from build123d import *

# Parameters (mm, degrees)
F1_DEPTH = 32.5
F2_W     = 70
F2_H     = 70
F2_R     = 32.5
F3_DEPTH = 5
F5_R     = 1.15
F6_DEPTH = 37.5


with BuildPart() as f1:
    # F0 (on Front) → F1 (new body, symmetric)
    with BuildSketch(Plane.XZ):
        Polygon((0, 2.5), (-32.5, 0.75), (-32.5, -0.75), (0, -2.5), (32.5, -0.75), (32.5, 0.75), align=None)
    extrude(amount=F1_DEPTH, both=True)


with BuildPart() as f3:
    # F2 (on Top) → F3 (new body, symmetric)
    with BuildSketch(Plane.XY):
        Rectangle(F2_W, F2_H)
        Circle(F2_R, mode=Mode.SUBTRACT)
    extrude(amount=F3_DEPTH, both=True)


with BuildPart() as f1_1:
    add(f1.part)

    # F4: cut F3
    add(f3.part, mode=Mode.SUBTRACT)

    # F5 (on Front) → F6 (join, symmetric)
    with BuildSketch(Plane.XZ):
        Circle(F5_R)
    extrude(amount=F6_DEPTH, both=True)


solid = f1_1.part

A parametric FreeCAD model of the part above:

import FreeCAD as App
import Part
import Sketcher

V = App.Vector


def add_polygon(sketch, points):
    """Adds a closed chain of lines whose ends are joined by coincident constraints."""
    first, n = sketch.GeometryCount, len(points)
    for a, b in zip(points, points[1:] + points[:1]):
        sketch.addGeometry(Part.LineSegment(App.Vector(*a, 0), App.Vector(*b, 0)), False)
    for i in range(n):
        sketch.addConstraint(Sketcher.Constraint("Coincident", first + i, 2, first + (i + 1) % n, 1))

doc = App.newDocument("Part")
body = doc.addObject("PartDesign::Body", "Body")

sketch1 = body.newObject("Sketcher::SketchObject", "Sketch")
sketch1.AttachmentSupport = (doc.getObject("XZ_Plane"), [""])
sketch1.MapMode = "FlatFace"
add_polygon(sketch1, [(0, 2.5), (-32.5, 0.8), (-32.5, -0.8), (0, -2.5), (32.5, -0.8), (32.5, 0.8)])
sketch1.addConstraint([
    Sketcher.Constraint("Vertical", 1),
    Sketcher.Constraint("Vertical", 4),
    Sketcher.Constraint("Symmetric", 0, 2, 3, 2, -1, 1),
    Sketcher.Constraint("Symmetric", 2, 2, 5, 2, -1, 1),
    Sketcher.Constraint("PointOnObject", 2, 2, -2),
    Sketcher.Constraint("Parallel", 2, 5),
    Sketcher.Constraint("Horizontal", 1, 2, 3, 2),
    Sketcher.Constraint("DistanceY", 1, 2, 1, 1, 1.5),
    Sketcher.Constraint("DistanceX", 1, 2, 3, 2, 65.0),
    Sketcher.Constraint("DistanceY", 2, 2, 5, 2, 5.0),
])
pad1 = body.newObject("PartDesign::Pad", "Pad")
pad1.Profile = sketch1
pad1.Length = 65
pad1.Midplane = True
body2 = doc.addObject("PartDesign::Body", "Body001")

sketch2 = body2.newObject("Sketcher::SketchObject", "Sketch001")
sketch2.AttachmentSupport = (doc.getObject("XY_Plane001"), [""])
sketch2.MapMode = "FlatFace"
add_polygon(sketch2, [(-35, 35), (-35, -35), (35, -35), (35, 35)])
sketch2.addGeometry(Part.Circle(V(0, 0, 0), V(0, 0, 1), 32), False)
sketch2.addConstraint([
    Sketcher.Constraint("Vertical", 0),
    Sketcher.Constraint("Horizontal", 1),
    Sketcher.Constraint("Vertical", 2),
    Sketcher.Constraint("Horizontal", 3),
    Sketcher.Constraint("Coincident", 4, 3, -1, 1),
    Sketcher.Constraint("Symmetric", 0, 2, 2, 2, -1, 1),
    Sketcher.Constraint("Equal", 3, 0),
    Sketcher.Constraint("Diameter", 4, 65.0),
    Sketcher.Constraint("DistanceX", 1, 1, 1, 2, 70.0),
])
pad2 = body2.newObject("PartDesign::Pad", "Pad001")
pad2.Profile = sketch2
pad2.Length = 10
pad2.Midplane = True
doc.recompute()

boolean = body.newObject("PartDesign::Boolean", "Boolean")
boolean.Type = "Cut"
boolean.addObjects([body2])

sketch3 = body.newObject("Sketcher::SketchObject", "Sketch002")
sketch3.AttachmentSupport = (doc.getObject("XZ_Plane"), [""])
sketch3.MapMode = "FlatFace"
sketch3.addGeometry(Part.Circle(V(0, 0, 0), V(0, 0, 1), 1.1), False)
sketch3.addConstraint([
    Sketcher.Constraint("Coincident", 0, 3, -1, 1),
    Sketcher.Constraint("Diameter", 0, 2.3),
])
pad3 = body.newObject("PartDesign::Pad", "Pad002")
pad3.Profile = sketch3
pad3.Length = 75
pad3.Midplane = True

doc.recompute()
